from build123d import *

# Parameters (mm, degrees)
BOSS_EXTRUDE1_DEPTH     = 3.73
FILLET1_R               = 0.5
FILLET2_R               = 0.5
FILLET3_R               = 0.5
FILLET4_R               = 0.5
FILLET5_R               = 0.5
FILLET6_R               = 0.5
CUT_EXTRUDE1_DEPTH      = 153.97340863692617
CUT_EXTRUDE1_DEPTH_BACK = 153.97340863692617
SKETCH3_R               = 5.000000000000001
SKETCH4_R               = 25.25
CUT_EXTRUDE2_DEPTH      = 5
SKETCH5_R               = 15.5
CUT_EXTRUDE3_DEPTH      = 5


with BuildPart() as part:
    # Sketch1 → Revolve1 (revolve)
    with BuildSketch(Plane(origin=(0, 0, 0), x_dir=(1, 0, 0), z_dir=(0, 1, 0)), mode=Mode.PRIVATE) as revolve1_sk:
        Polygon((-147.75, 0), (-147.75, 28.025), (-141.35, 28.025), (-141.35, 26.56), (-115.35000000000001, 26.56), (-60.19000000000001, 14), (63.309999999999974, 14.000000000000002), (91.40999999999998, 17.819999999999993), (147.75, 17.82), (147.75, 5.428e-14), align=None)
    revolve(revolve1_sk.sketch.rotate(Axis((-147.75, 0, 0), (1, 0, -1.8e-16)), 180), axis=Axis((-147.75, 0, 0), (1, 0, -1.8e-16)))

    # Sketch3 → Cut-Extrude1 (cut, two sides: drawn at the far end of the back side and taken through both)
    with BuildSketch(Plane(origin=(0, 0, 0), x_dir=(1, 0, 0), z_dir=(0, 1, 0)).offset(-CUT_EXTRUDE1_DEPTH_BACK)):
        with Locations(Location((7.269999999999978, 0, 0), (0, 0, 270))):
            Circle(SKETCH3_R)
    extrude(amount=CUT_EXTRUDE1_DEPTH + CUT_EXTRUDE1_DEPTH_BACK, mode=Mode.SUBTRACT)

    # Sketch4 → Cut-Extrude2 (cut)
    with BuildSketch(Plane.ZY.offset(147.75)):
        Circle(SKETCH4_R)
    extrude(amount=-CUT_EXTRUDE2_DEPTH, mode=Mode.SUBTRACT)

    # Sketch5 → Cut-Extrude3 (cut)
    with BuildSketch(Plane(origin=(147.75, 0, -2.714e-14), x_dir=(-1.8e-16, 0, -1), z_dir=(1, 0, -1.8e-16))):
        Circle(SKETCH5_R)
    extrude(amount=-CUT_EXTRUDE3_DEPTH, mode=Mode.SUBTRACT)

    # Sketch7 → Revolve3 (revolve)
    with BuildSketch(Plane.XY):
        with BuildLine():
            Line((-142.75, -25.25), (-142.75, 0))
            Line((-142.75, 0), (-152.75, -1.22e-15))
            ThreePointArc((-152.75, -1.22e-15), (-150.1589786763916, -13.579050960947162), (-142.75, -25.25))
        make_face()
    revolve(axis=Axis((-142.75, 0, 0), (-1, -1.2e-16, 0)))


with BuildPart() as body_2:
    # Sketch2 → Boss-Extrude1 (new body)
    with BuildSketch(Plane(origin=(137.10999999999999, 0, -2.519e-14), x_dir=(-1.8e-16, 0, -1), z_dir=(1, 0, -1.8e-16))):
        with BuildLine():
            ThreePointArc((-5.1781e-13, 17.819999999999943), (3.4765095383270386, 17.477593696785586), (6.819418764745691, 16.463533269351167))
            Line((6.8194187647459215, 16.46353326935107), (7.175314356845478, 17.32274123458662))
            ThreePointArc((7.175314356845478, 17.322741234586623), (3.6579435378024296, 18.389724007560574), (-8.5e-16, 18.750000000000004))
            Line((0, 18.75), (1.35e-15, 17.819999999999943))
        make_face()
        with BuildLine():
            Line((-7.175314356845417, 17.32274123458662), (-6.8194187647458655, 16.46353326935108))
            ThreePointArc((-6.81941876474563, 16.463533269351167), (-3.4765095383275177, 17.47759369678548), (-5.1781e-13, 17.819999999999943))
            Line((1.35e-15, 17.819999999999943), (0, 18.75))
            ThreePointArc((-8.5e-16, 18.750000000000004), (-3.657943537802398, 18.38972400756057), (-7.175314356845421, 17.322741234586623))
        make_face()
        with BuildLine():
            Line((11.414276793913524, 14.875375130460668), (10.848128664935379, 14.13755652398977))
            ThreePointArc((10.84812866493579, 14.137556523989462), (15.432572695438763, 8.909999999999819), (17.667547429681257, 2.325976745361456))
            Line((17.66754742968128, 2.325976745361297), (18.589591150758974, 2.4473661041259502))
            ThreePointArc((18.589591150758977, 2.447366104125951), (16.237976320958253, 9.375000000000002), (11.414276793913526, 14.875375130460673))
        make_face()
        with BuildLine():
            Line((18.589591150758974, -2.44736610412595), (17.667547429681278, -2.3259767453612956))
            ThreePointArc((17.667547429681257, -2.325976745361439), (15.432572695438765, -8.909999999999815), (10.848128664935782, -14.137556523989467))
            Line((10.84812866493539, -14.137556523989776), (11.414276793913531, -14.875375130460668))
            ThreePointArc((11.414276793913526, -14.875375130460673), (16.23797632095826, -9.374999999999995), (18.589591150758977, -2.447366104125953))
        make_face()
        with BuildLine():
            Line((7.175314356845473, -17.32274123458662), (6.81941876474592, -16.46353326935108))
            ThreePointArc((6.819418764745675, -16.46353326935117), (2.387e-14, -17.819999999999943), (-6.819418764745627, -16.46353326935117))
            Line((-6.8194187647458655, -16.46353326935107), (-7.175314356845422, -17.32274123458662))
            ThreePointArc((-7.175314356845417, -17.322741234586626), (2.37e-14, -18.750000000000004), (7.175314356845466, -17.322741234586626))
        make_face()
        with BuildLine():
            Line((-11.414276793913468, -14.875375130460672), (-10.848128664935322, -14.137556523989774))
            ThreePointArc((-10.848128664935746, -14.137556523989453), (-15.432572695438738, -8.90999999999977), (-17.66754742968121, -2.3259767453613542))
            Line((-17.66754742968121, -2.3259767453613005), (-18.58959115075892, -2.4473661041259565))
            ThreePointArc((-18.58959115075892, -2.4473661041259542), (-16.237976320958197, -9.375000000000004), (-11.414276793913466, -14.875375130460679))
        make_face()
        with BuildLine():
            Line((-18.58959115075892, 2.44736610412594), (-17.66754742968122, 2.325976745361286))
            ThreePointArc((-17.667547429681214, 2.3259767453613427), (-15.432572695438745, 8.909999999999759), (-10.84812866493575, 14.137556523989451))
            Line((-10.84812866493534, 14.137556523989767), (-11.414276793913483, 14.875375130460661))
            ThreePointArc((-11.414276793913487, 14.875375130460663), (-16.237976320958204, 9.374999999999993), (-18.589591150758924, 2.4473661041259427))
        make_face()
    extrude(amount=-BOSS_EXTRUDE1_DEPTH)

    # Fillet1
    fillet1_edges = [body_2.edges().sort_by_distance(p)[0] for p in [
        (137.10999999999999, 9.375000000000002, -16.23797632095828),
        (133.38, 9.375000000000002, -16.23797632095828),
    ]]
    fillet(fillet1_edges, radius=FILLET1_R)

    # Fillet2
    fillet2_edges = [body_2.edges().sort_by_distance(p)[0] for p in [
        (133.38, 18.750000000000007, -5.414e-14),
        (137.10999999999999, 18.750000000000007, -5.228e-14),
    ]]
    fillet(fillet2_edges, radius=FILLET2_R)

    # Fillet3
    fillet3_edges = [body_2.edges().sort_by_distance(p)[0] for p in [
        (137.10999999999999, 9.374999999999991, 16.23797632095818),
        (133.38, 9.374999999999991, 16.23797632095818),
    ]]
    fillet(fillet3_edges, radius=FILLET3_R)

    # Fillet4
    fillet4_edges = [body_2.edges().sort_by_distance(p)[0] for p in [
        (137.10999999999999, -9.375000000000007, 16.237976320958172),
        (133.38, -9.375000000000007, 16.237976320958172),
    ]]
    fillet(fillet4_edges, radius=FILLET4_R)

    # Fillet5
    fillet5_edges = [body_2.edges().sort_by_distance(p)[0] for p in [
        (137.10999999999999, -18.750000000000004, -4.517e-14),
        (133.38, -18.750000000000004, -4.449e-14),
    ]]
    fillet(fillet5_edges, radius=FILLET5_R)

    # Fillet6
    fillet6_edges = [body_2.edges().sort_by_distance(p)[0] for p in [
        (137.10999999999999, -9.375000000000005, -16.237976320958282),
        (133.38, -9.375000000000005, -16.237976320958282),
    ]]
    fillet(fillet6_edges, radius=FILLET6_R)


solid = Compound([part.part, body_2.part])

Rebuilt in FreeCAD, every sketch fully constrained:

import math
import FreeCAD as App
import Part
import Sketcher

V = App.Vector
Q = App.Units.Quantity


def edges_at(feature, points):
    """Names of the edges that pass closest to the given points."""
    edges = feature.Shape.Edges
    near = lambda p: min(range(len(edges)), key=lambda i: edges[i].distToShape(Part.Vertex(*p))[0])
    return sorted({f"Edge{near(p) + 1}" for p in points})

doc = App.newDocument("Part")
body = doc.addObject("PartDesign::Body", "Body")

sketch1 = body.newObject("Sketcher::SketchObject", "Sketch")
sketch1.AttachmentSupport = (doc.getObject("XZ_Plane"), [""])
sketch1.MapMode = "FlatFace"
sketch1.addGeometry(Part.LineSegment(V(-147.8, -28, 0), V(-147.8, 0, 0)), False)
sketch1.addGeometry(Part.LineSegment(V(-147.8, 0, 0), V(147.8, 0, 0)), False)
sketch1.addGeometry(Part.LineSegment(V(147.8, 0, 0), V(147.8, -17.8, 0)), False)
sketch1.addGeometry(Part.LineSegment(V(147.8, -17.8, 0), V(91.4, -17.8, 0)), False)
sketch1.addGeometry(Part.LineSegment(V(91.4, -17.8, 0), V(63.3, -14, 0)), False)
sketch1.addGeometry(Part.LineSegment(V(63.3, -14, 0), V(-60.2, -14, 0)), False)
sketch1.addGeometry(Part.LineSegment(V(-60.2, -14, 0), V(-115.3, -26.6, 0)), False)
sketch1.addGeometry(Part.LineSegment(V(-115.3, -26.6, 0), V(-141.3, -26.6, 0)), False)
sketch1.addGeometry(Part.LineSegment(V(-141.3, -26.6, 0), V(-141.3, -28, 0)), False)
sketch1.addGeometry(Part.LineSegment(V(-141.3, -28, 0), V(-147.8, -28, 0)), False)
sketch1.addConstraint(Sketcher.Constraint("Coincident", 0, 2, 1, 1))
sketch1.addConstraint(Sketcher.Constraint("Coincident", 1, 2, 2, 1))
sketch1.addConstraint(Sketcher.Constraint("Coincident", 2, 2, 3, 1))
sketch1.addConstraint(Sketcher.Constraint("Coincident", 3, 2, 4, 1))
sketch1.addConstraint(Sketcher.Constraint("Coincident", 4, 2, 5, 1))
sketch1.addConstraint(Sketcher.Constraint("Coincident", 5, 2, 6, 1))
sketch1.addConstraint(Sketcher.Constraint("Coincident", 6, 2, 7, 1))
sketch1.addConstraint(Sketcher.Constraint("Coincident", 7, 2, 8, 1))
sketch1.addConstraint(Sketcher.Constraint("Coincident", 8, 2, 9, 1))
sketch1.addConstraint(Sketcher.Constraint("Coincident", 9, 2, 0, 1))
sketch1.addConstraint(Sketcher.Constraint("Vertical", 0))
sketch1.addConstraint(Sketcher.Constraint("Horizontal", 1))
sketch1.addConstraint(Sketcher.Constraint("Vertical", 2))
sketch1.addConstraint(Sketcher.Constraint("Horizontal", 3))
sketch1.addConstraint(Sketcher.Constraint("Horizontal", 5))
sketch1.addConstraint(Sketcher.Constraint("Horizontal", 7))
sketch1.addConstraint(Sketcher.Constraint("Vertical", 8))
sketch1.addConstraint(Sketcher.Constraint("Horizontal", 9))
sketch1.addConstraint(Sketcher.Constraint("Symmetric", 0, 2, 1, 2, -1, 1))
sketch1.addConstraint(Sketcher.Constraint("DistanceX", 7, 2, 7, 1, Q("26 mm")))
sketch1.addConstraint(Sketcher.Constraint("DistanceX", 1, 1, 1, 2, Q("295.5 mm")))
sketch1.addConstraint(Sketcher.Constraint("DistanceX", 5, 2, 5, 1, Q("123.5 mm")))
sketch1.addConstraint(Sketcher.Constraint("DistanceX", 9, 2, 9, 1, Q("6.4 mm")))
sketch1.addConstraint(Sketcher.Constraint("DistanceY", 4, 2, -1, 1, Q("14 mm")))
sketch1.addConstraint(Sketcher.Constraint("DistanceX", 3, 2, 3, 1, Q("56.34 mm")))
sketch1.addConstraint(Sketcher.Constraint("DistanceY", 2, 2, 2, 1, Q("17.82 mm")))
sketch1.addConstraint(Sketcher.Constraint("DistanceX", 4, 2, 3, 2, Q("28.1 mm")))
sketch1.addConstraint(Sketcher.Constraint("DistanceY", 0, 1, 0, 2, Q("28.025 mm")))
sketch1.addConstraint(Sketcher.Constraint("DistanceY", 8, 2, 8, 1, Q("1.465 mm")))
revolution = body.newObject("PartDesign::Revolution", "Revolution")
revolution.Profile = sketch1
revolution.ReferenceAxis = (sketch1, ["H_Axis"])
revolution.Angle = 360

sketch2 = body.newObject("Sketcher::SketchObject", "Sketch001")
sketch2.AttachmentSupport = (doc.getObject("XZ_Plane"), [""])
sketch2.MapMode = "FlatFace"
sketch2.addGeometry(Part.Circle(V(7, 0, 0), V(0, 0, 1), 5), False)
sketch2.addConstraint(Sketcher.Constraint("PointOnObject", 0, 3, -1))
sketch2.addConstraint(Sketcher.Constraint("Diameter", 0, Q("10 mm")))
sketch2.addConstraint(Sketcher.Constraint("DistanceX", -1, 1, 0, 3, Q("7.27 mm")))
pocket1 = body.newObject("PartDesign::Pocket", "Pocket")
pocket1.Profile = sketch2
pocket1.Type = "ThroughAll"
pocket1.Midplane = True

sketch3 = body.newObject("Sketcher::SketchObject", "Sketch002")
sketch3.AttachmentSupport = (doc.getObject("YZ_Plane"), [""])
sketch3.MapMode = "FlatFace"
sketch3.AttachmentOffset = App.Placement(V(0, 0, -147.75), App.Rotation())
sketch3.addGeometry(Part.Circle(V(0, 0, 0), V(0, 0, 1), 25), False)
sketch3.addConstraint(Sketcher.Constraint("Coincident", 0, 3, -1, 1))
sketch3.addConstraint(Sketcher.Constraint("Diameter", 0, Q("50.5 mm")))
pocket2 = body.newObject("PartDesign::Pocket", "Pocket001")
pocket2.Profile = sketch3
pocket2.Length = 5
pocket2.Reversed = True

sketch4 = body.newObject("Sketcher::SketchObject", "Sketch003")
sketch4.AttachmentSupport = (doc.getObject("YZ_Plane"), [""])
sketch4.MapMode = "FlatFace"
sketch4.AttachmentOffset = App.Placement(V(0, 0, 147.75), App.Rotation())
sketch4.addGeometry(Part.Circle(V(0, 0, 0), V(0, 0, 1), 16), False)
sketch4.addConstraint(Sketcher.Constraint("Coincident", 0, 3, -1, 1))
sketch4.addConstraint(Sketcher.Constraint("Diameter", 0, Q("31 mm")))
pocket3 = body.newObject("PartDesign::Pocket", "Pocket002")
pocket3.Profile = sketch4
pocket3.Length = 5

sketch5 = body.newObject("Sketcher::SketchObject", "Sketch004")
sketch5.AttachmentSupport = (doc.getObject("XY_Plane"), [""])
sketch5.MapMode = "FlatFace"
sketch5.addGeometry(Part.LineSegment(V(-143, -25, 0), V(-143, 0, 0)), False)
sketch5.addGeometry(Part.LineSegment(V(-143, 0, 0), V(-153, 0, 0)), False)
sketch5.addGeometry(Part.ArcOfCircle(Part.Circle(V(-116, 0, 0), V(0, 0, 1), 37), math.radians(180), math.radians(223)), False)
sketch5.addConstraint(Sketcher.Constraint("Coincident", 0, 2, 1, 1))
sketch5.addConstraint(Sketcher.Constraint("Coincident", 1, 2, 2, 1))
sketch5.addConstraint(Sketcher.Constraint("Coincident", 2, 2, 0, 1))
sketch5.addConstraint(Sketcher.Constraint("Vertical", 0))
sketch5.addConstraint(Sketcher.Constraint("Horizontal", 1))
sketch5.addConstraint(Sketcher.Constraint("PointOnObject", 2, 3, -1))
sketch5.addConstraint(Sketcher.Constraint("PointOnObject", 0, 2, -1))
sketch5.addConstraint(Sketcher.Constraint("DistanceX", 1, 2, 1, 1, Q("10 mm")))
sketch5.addConstraint(Sketcher.Constraint("DistanceY", 0, 1, 0, 2, Q("25.25 mm")))
sketch5.addConstraint(Sketcher.Constraint("DistanceX", 0, 2, -1, 1, Q("142.75 mm")))
revolution2 = body.newObject("PartDesign::Revolution", "Revolution001")
revolution2.Profile = sketch5
revolution2.ReferenceAxis = (sketch5, ["H_Axis"])
revolution2.Angle = 360
body2 = doc.addObject("PartDesign::Body", "Body001")
body2.AllowCompound = True

sketch6 = body2.newObject("Sketcher::SketchObject", "Sketch005")
sketch6.AttachmentSupport = (doc.getObject("YZ_Plane001"), [""])
sketch6.MapMode = "FlatFace"
sketch6.AttachmentOffset = App.Placement(V(0, 0, 137.11), App.Rotation())
sketch6.addGeometry(Part.LineSegment(V(16.5, -6.8, 0), V(17.3, -7.2, 0)), False)
sketch6.addGeometry(Part.ArcOfCircle(Part.Circle(V(0, 0, 0), V(0, 0, 1), 18.8), math.radians(-22), math.radians(22)), False)
sketch6.addGeometry(Part.LineSegment(V(17.3, 7.2, 0), V(16.5, 6.8, 0)), False)
sketch6.addGeometry(Part.ArcOfCircle(Part.Circle(V(0, 0, 0), V(0, 0, 1), 17.8), math.radians(-23), math.radians(23)), False)
sketch6.addGeometry(Part.LineSegment(V(14.9, -11.4, 0), V(14.1, -10.8, 0)), False)
sketch6.addGeometry(Part.ArcOfCircle(Part.Circle(V(0, 0, 0), V(0, 0, 1), 17.8), math.radians(-83), math.radians(-38)), False)
sketch6.addGeometry(Part.LineSegment(V(2.3, -17.7, 0), V(2.4, -18.6, 0)), False)
sketch6.addGeometry(Part.ArcOfCircle(Part.Circle(V(0, 0, 0), V(0, 0, 1), 18.8), math.radians(-83), math.radians(-38)), False)
sketch6.addGeometry(Part.LineSegment(V(-2.4, -18.6, 0), V(-2.3, -17.7, 0)), False)
sketch6.addGeometry(Part.ArcOfCircle(Part.Circle(V(0, 0, 0), V(0, 0, 1), 17.8), math.radians(-142), math.radians(-97)), False)
sketch6.addGeometry(Part.LineSegment(V(-14.1, -10.8, 0), V(-14.9, -11.4, 0)), False)
sketch6.addGeometry(Part.ArcOfCircle(Part.Circle(V(0, 0, 0), V(0, 0, 1), 18.8), math.radians(-142), math.radians(-97)), False)
sketch6.addGeometry(Part.LineSegment(V(-17.3, -7.2, 0), V(-16.5, -6.8, 0)), False)
sketch6.addGeometry(Part.ArcOfCircle(Part.Circle(V(0, 0, 0), V(0, 0, 1), 17.8), math.radians(157), math.radians(203)), False)
sketch6.addGeometry(Part.LineSegment(V(-16.5, 6.8, 0), V(-17.3, 7.2, 0)), False)
sketch6.addGeometry(Part.ArcOfCircle(Part.Circle(V(0, 0, 0), V(0, 0, 1), 18.8), math.radians(158), math.radians(202)), False)
sketch6.addGeometry(Part.LineSegment(V(-14.9, 11.4, 0), V(-14.1, 10.8, 0)), False)
sketch6.addGeometry(Part.ArcOfCircle(Part.Circle(V(0, 0, 0), V(0, 0, 1), 17.8), math.radians(97), math.radians(142)), False)
sketch6.addGeometry(Part.LineSegment(V(-2.3, 17.7, 0), V(-2.4, 18.6, 0)), False)
sketch6.addGeometry(Part.ArcOfCircle(Part.Circle(V(0, 0, 0), V(0, 0, 1), 18.8), math.radians(97), math.radians(142)), False)
sketch6.addGeometry(Part.LineSegment(V(2.4, 18.6, 0), V(2.3, 17.7, 0)), False)
sketch6.addGeometry(Part.ArcOfCircle(Part.Circle(V(0, 0, 0), V(0, 0, 1), 17.8), math.radians(38), math.radians(83)), False)
sketch6.addGeometry(Part.LineSegment(V(14.1, 10.8, 0), V(14.9, 11.4, 0)), False)
sketch6.addGeometry(Part.ArcOfCircle(Part.Circle(V(0, 0, 0), V(0, 0, 1), 18.8), math.radians(38), math.radians(83)), False)
sketch6.addConstraint(Sketcher.Constraint("Coincident", 0, 2, 1, 1))
sketch6.addConstraint(Sketcher.Constraint("Coincident", 1, 2, 2, 1))
sketch6.addConstraint(Sketcher.Constraint("Coincident", 2, 2, 3, 2))
sketch6.addConstraint(Sketcher.Constraint("Coincident", 3, 1, 0, 1))
sketch6.addConstraint(Sketcher.Constraint("Coincident", 4, 2, 5, 2))
sketch6.addConstraint(Sketcher.Constraint("Coincident", 5, 1, 6, 1))
sketch6.addConstraint(Sketcher.Constraint("Coincident", 6, 2, 7, 1))
sketch6.addConstraint(Sketcher.Constraint("Coincident", 7, 2, 4, 1))
sketch6.addConstraint(Sketcher.Constraint("Coincident", 8, 2, 9, 2))
sketch6.addConstraint(Sketcher.Constraint("Coincident", 9, 1, 10, 1))
sketch6.addConstraint(Sketcher.Constraint("Coincident", 10, 2, 11, 1))
sketch6.addConstraint(Sketcher.Constraint("Coincident", 11, 2, 8, 1))
sketch6.addConstraint(Sketcher.Constraint("Coincident", 12, 2, 13, 2))
sketch6.addConstraint(Sketcher.Constraint("Coincident", 13, 1, 14, 1))
sketch6.addConstraint(Sketcher.Constraint("Coincident", 14, 2, 15, 1))
sketch6.addConstraint(Sketcher.Constraint("Coincident", 15, 2, 12, 1))
sketch6.addConstraint(Sketcher.Constraint("Coincident", 16, 2, 17, 2))
sketch6.addConstraint(Sketcher.Constraint("Coincident", 17, 1, 18, 1))
sketch6.addConstraint(Sketcher.Constraint("Coincident", 18, 2, 19, 1))
sketch6.addConstraint(Sketcher.Constraint("Coincident", 19, 2, 16, 1))
sketch6.addConstraint(Sketcher.Constraint("Coincident", 20, 2, 21, 2))
sketch6.addConstraint(Sketcher.Constraint("Coincident", 21, 1, 22, 1))
sketch6.addConstraint(Sketcher.Constraint("Coincident", 22, 2, 23, 1))
sketch6.addConstraint(Sketcher.Constraint("Coincident", 23, 2, 20, 1))
sketch6.addConstraint(Sketcher.Constraint("Coincident", 1, 3, -1, 1))
sketch6.addConstraint(Sketcher.Constraint("Coincident", 3, 3, -1, 1))
sketch6.addConstraint(Sketcher.Constraint("Coincident", 5, 3, -1, 1))
sketch6.addConstraint(Sketcher.Constraint("Coincident", 7, 3, -1, 1))
sketch6.addConstraint(Sketcher.Constraint("Coincident", 9, 3, -1, 1))
sketch6.addConstraint(Sketcher.Constraint("Coincident", 11, 3, -1, 1))
sketch6.addConstraint(Sketcher.Constraint("Coincident", 13, 3, -1, 1))
sketch6.addConstraint(Sketcher.Constraint("Coincident", 15, 3, -1, 1))
sketch6.addConstraint(Sketcher.Constraint("Coincident", 17, 3, -1, 1))
sketch6.addConstraint(Sketcher.Constraint("Coincident", 19, 3, -1, 1))
sketch6.addConstraint(Sketcher.Constraint("Coincident", 21, 3, -1, 1))
sketch6.addConstraint(Sketcher.Constraint("Coincident", 23, 3, -1, 1))
sketch6.addConstraint(Sketcher.Constraint("Equal", 3, 5))
sketch6.addConstraint(Sketcher.Constraint("Equal", 1, 7))
sketch6.addConstraint(Sketcher.Constraint("Equal", 5, 9))
sketch6.addConstraint(Sketcher.Constraint("Equal", 7, 11))
sketch6.addConstraint(Sketcher.Constraint("Equal", 9, 13))
sketch6.addConstraint(Sketcher.Constraint("Equal", 11, 15))
sketch6.addConstraint(Sketcher.Constraint("Equal", 13, 17))
sketch6.addConstraint(Sketcher.Constraint("Equal", 15, 19))
sketch6.addConstraint(Sketcher.Constraint("Equal", 17, 21))
sketch6.addConstraint(Sketcher.Constraint("Equal", 19, 23))
sketch6.addConstraint(Sketcher.Constraint("Parallel", 2, 12))
sketch6.addConstraint(Sketcher.Constraint("Parallel", 0, 14))
sketch6.addConstraint(Sketcher.Constraint("Parallel", 4, 16))
sketch6.addConstraint(Sketcher.Constraint("Parallel", 6, 18))
sketch6.addConstraint(Sketcher.Constraint("Parallel", 8, 20))
sketch6.addConstraint(Sketcher.Constraint("Parallel", 10, 22))
sketch6.addConstraint(Sketcher.Constraint("Horizontal", 5, 1, 8, 2))
sketch6.addConstraint(Sketcher.Constraint("Horizontal", 4, 2, 9, 1))
sketch6.addConstraint(Sketcher.Constraint("Horizontal", 7, 2, 10, 2))
sketch6.addConstraint(Sketcher.Constraint("Horizontal", 6, 2, 11, 2))
sketch6.addConstraint(Sketcher.Constraint("Horizontal", 3, 1, 12, 2))
sketch6.addConstraint(Sketcher.Constraint("Horizontal", 2, 2, 13, 1))
sketch6.addConstraint(Sketcher.Constraint("Horizontal", 1, 2, 14, 2))
sketch6.addConstraint(Sketcher.Constraint("Horizontal", 17, 1, 20, 2))
sketch6.addConstraint(Sketcher.Constraint("Horizontal", 16, 2, 21, 1))
sketch6.addConstraint(Sketcher.Constraint("Vertical", 0, 2, 1, 2))
sketch6.addConstraint(Sketcher.Constraint("Vertical", 9, 1, 16, 2))
sketch6.addConstraint(Sketcher.Constraint("Vertical", 8, 2, 17, 1))
sketch6.addConstraint(Sketcher.Constraint("Radius", 1, Q("18.75 mm")))
sketch6.addConstraint(Sketcher.Constraint("Radius", 3, Q("17.82 mm")))
sketch6.addConstraint(Sketcher.Constraint("Angle", 0, Q("-22.5 deg")))
sketch6.addConstraint(Sketcher.Constraint("Angle", 4, Q("142.5 deg")))
sketch6.addConstraint(Sketcher.Constraint("Angle", 6, Q("-82.5 deg")))
sketch6.addConstraint(Sketcher.Constraint("DistanceX", 5, 1, 7, 2, Q("12.549398 mm")))
sketch6.addConstraint(Sketcher.Constraint("DistanceX", -1, 1, 0, 2, Q("17.322741 mm")))
sketch6.addConstraint(Sketcher.Constraint("DistanceY", 4, 2, -1, 1, Q("10.848129 mm")))
pad1 = body2.newObject("PartDesign::Pad", "Pad")
pad1.Profile = sketch6
pad1.Length = 3.73
pad1.Reversed = True
doc.recompute()

fillet = body2.newObject("PartDesign::Fillet", "Fillet")
fillet.Base = (pad1, edges_at(pad1, [(137.11, 9.375, -16.238), (133.38, 9.375, -16.238)]))
fillet.Radius = 0.5
doc.recompute()

fillet2 = body2.newObject("PartDesign::Fillet", "Fillet001")
fillet2.Base = (fillet, edges_at(fillet, [(133.38, 18.75, 0), (137.11, 18.75, 0)]))
fillet2.Radius = 0.5
doc.recompute()

fillet3 = body2.newObject("PartDesign::Fillet", "Fillet002")
fillet3.Base = (fillet2, edges_at(fillet2, [(137.11, 9.375, 16.238), (133.38, 9.375, 16.238)]))
fillet3.Radius = 0.5
doc.recompute()

fillet4 = body2.newObject("PartDesign::Fillet", "Fillet003")
fillet4.Base = (fillet3, edges_at(fillet3, [(137.11, -9.375, 16.238), (133.38, -9.375, 16.238)]))
fillet4.Radius = 0.5
doc.recompute()

fillet5 = body2.newObject("PartDesign::Fillet", "Fillet004")
fillet5.Base = (fillet4, edges_at(fillet4, [(137.11, -18.75, 0), (133.38, -18.75, 0)]))
fillet5.Radius = 0.5
doc.recompute()

fillet6 = body2.newObject("PartDesign::Fillet", "Fillet005")
fillet6.Base = (fillet5, edges_at(fillet5, [(137.11, -9.375, -16.238), (133.38, -9.375, -16.238)]))
fillet6.Radius = 0.5

doc.recompute()
